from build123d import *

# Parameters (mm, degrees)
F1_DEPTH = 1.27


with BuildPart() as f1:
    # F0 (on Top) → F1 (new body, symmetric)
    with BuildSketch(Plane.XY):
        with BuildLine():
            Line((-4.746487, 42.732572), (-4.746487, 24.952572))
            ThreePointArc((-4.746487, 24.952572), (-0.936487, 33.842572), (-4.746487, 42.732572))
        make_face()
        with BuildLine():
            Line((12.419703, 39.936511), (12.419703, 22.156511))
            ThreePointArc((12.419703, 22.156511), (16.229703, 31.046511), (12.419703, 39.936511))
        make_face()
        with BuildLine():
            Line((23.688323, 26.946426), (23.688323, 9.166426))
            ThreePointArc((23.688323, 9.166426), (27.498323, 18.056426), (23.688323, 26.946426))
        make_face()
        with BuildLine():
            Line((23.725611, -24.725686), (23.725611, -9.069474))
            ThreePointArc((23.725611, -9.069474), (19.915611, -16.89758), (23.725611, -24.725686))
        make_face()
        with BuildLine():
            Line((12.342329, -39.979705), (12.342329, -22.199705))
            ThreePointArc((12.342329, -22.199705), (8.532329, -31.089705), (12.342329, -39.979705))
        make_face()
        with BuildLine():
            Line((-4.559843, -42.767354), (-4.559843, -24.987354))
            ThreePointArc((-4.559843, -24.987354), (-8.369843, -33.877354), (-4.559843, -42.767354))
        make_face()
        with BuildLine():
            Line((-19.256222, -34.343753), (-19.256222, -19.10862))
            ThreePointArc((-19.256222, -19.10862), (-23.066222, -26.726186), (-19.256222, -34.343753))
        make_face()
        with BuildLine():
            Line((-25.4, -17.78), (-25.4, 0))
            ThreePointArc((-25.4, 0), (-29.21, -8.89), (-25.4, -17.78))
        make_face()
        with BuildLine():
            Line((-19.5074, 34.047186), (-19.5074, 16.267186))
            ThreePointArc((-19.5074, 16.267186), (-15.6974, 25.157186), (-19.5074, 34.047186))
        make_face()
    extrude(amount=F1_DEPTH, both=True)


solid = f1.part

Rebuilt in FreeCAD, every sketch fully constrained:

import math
import FreeCAD as App
import Part
import Sketcher

V = App.Vector
Q = App.Units.Quantity

doc = App.newDocument("Part")
body = doc.addObject("PartDesign::Body", "Body")
body.AllowCompound = True

# Sketch on XY plane
sketch1 = doc.addObject("Sketcher::SketchObject", "Sketch")
body.addObject(sketch1)
sketch1.AttachmentSupport = (doc.XY_Plane, [""])
sketch1.MapMode = "FlatFace"
sketch1.addGeometry([
    Part.LineSegment(V(-5, 43, 0), V(-5, 25, 0)),  # 0
    Part.ArcOfCircle(Part.Circle(V(-13, 34, 0), V(0, 0, 1), 12), math.radians(-46), math.radians(46)),  # 1
    Part.LineSegment(V(12, 40, 0), V(12, 22, 0)),  # 2
    Part.ArcOfCircle(Part.Circle(V(4, 31, 0), V(0, 0, 1), 12), math.radians(-46), math.radians(46)),  # 3
    Part.LineSegment(V(24, 27, 0), V(24, 9, 0)),  # 4
    Part.ArcOfCircle(Part.Circle(V(15, 18, 0), V(0, 0, 1), 12), math.radians(-46), math.radians(46)),  # 5
    Part.LineSegment(V(24, -25, 0), V(24, -9, 0)),  # 6
    Part.ArcOfCircle(Part.Circle(V(30, -17, 0), V(0, 0, 1), 10), math.radians(128), math.radians(232)),  # 7
    Part.LineSegment(V(12, -40, 0), V(12, -22, 0)),  # 8
    Part.ArcOfCircle(Part.Circle(V(21, -31, 0), V(0, 0, 1), 12), math.radians(134), math.radians(226)),  # 9
    Part.LineSegment(V(-5, -43, 0), V(-5, -25, 0)),  # 10
    Part.ArcOfCircle(Part.Circle(V(4, -34, 0), V(0, 0, 1), 12), math.radians(134), math.radians(226)),  # 11
    Part.LineSegment(V(-19, -34, 0), V(-19, -19, 0)),  # 12
    Part.ArcOfCircle(Part.Circle(V(-14, -27, 0), V(0, 0, 1), 10), math.radians(127), math.radians(233)),  # 13
    Part.LineSegment(V(-25, -18, 0), V(-25, 0, 0)),  # 14
    Part.ArcOfCircle(Part.Circle(V(-17, -9, 0), V(0, 0, 1), 12), math.radians(134), math.radians(226)),  # 15
    Part.LineSegment(V(-20, 34, 0), V(-20, 16, 0)),  # 16
    Part.ArcOfCircle(Part.Circle(V(-28, 25, 0), V(0, 0, 1), 12), math.radians(-46), math.radians(46)),  # 17
], False)
sketch1.addConstraint([
    Sketcher.Constraint("Coincident", 0, 1, 1, 2),
    Sketcher.Constraint("Coincident", 1, 1, 0, 2),
    Sketcher.Constraint("Coincident", 2, 1, 3, 2),
    Sketcher.Constraint("Coincident", 3, 1, 2, 2),
    Sketcher.Constraint("Coincident", 4, 1, 5, 2),
    Sketcher.Constraint("Coincident", 5, 1, 4, 2),
    Sketcher.Constraint("Coincident", 6, 1, 7, 2),
    Sketcher.Constraint("Coincident", 7, 1, 6, 2),
    Sketcher.Constraint("Coincident", 8, 1, 9, 2),
    Sketcher.Constraint("Coincident", 9, 1, 8, 2),
    Sketcher.Constraint("Coincident", 10, 1, 11, 2),
    Sketcher.Constraint("Coincident", 11, 1, 10, 2),
    Sketcher.Constraint("Coincident", 12, 1, 13, 2),
    Sketcher.Constraint("Coincident", 13, 1, 12, 2),
    Sketcher.Constraint("Coincident", 14, 1, 15, 2),
    Sketcher.Constraint("Coincident", 15, 1, 14, 2),
    Sketcher.Constraint("Coincident", 16, 1, 17, 2),
    Sketcher.Constraint("Coincident", 17, 1, 16, 2),
    Sketcher.Constraint("Vertical", 0),
    Sketcher.Constraint("Vertical", 2),
    Sketcher.Constraint("Vertical", 4),
    Sketcher.Constraint("Vertical", 6),
    Sketcher.Constraint("Vertical", 8),
    Sketcher.Constraint("Vertical", 10),
    Sketcher.Constraint("Vertical", 12),
    Sketcher.Constraint("Vertical", 14),
    Sketcher.Constraint("Vertical", 16),
    Sketcher.Constraint("Equal", 1, 3),
    Sketcher.Constraint("Equal", 3, 5),
    Sketcher.Constraint("Equal", 5, 9),
    Sketcher.Constraint("Equal", 9, 11),
    Sketcher.Constraint("Equal", 11, 15),
    Sketcher.Constraint("Equal", 15, 17),
    Sketcher.Constraint("PointOnObject", 15, 1, -1),
    Sketcher.Constraint("Equal", 0, 2),
    Sketcher.Constraint("Equal", 2, 4),
    Sketcher.Constraint("Equal", 4, 8),
    Sketcher.Constraint("Equal", 8, 10),
    Sketcher.Constraint("Equal", 10, 14),
    Sketcher.Constraint("Equal", 14, 16),
    Sketcher.Constraint("DistanceY", 0, 2, 0, 1, Q("0.7 in")),
    Sketcher.Constraint("DistanceX", 14, 1, -1, 1, Q("1 in")),
    Sketcher.Constraint("Radius", 1, Q("12.276667 mm")),
    Sketcher.Constraint("Radius", 7, Q("9.946895 mm")),
    Sketcher.Constraint("Radius", 13, Q("9.520134 mm")),
    Sketcher.Constraint("DistanceX", 16, 1, -1, 1, Q("19.5074 mm")),
    Sketcher.Constraint("DistanceX", 13, 3, 6, 1, Q("37.271699 mm")),
    Sketcher.Constraint("DistanceY", 13, 3, 6, 1, Q("2.000501 mm")),
    Sketcher.Constraint("DistanceY", 7, 1, 5, 1, Q("18.2359 mm")),
    Sketcher.Constraint("DistanceY", 10, 1, 12, 1, Q("8.423601 mm")),
    Sketcher.Constraint("DistanceY", 6, 1, 6, 2, Q("15.656212 mm")),
    Sketcher.Constraint("DistanceY", 12, 1, 12, 2, Q("15.235133 mm")),
    Sketcher.Constraint("DistanceY", -1, 1, 1, 3, Q("33.842572 mm")),
    Sketcher.Constraint("DistanceY", -1, 1, 3, 3, Q("31.046511 mm")),
    Sketcher.Constraint("DistanceY", 7, 3, -1, 1, Q("16.89758 mm")),
    Sketcher.Constraint("DistanceX", 13, 3, -1, 1, Q("13.546088 mm")),
    Sketcher.Constraint("DistanceX", -1, 1, 8, 1, Q("12.342329 mm")),
    Sketcher.Constraint("DistanceX", 1, 3, 3, 3, Q("17.16619 mm")),
    Sketcher.Constraint("DistanceX", 3, 3, 5, 3, Q("11.26862 mm")),
    Sketcher.Constraint("DistanceX", 5, 3, 7, 3, Q("14.64085 mm")),
    Sketcher.Constraint("DistanceY", 9, 3, 5, 3, Q("49.146131 mm")),
    Sketcher.Constraint("DistanceX", 11, 3, 9, 3, Q("16.902172 mm")),
    Sketcher.Constraint("DistanceY", 5, 3, 17, 3, Q("7.10076 mm")),
])
pad1 = doc.addObject("PartDesign::Pad", "Pad")
body.addObject(pad1)
pad1.Profile = sketch1
pad1.Length = Q("0.1 in")
pad1.Midplane = True

doc.recompute()
